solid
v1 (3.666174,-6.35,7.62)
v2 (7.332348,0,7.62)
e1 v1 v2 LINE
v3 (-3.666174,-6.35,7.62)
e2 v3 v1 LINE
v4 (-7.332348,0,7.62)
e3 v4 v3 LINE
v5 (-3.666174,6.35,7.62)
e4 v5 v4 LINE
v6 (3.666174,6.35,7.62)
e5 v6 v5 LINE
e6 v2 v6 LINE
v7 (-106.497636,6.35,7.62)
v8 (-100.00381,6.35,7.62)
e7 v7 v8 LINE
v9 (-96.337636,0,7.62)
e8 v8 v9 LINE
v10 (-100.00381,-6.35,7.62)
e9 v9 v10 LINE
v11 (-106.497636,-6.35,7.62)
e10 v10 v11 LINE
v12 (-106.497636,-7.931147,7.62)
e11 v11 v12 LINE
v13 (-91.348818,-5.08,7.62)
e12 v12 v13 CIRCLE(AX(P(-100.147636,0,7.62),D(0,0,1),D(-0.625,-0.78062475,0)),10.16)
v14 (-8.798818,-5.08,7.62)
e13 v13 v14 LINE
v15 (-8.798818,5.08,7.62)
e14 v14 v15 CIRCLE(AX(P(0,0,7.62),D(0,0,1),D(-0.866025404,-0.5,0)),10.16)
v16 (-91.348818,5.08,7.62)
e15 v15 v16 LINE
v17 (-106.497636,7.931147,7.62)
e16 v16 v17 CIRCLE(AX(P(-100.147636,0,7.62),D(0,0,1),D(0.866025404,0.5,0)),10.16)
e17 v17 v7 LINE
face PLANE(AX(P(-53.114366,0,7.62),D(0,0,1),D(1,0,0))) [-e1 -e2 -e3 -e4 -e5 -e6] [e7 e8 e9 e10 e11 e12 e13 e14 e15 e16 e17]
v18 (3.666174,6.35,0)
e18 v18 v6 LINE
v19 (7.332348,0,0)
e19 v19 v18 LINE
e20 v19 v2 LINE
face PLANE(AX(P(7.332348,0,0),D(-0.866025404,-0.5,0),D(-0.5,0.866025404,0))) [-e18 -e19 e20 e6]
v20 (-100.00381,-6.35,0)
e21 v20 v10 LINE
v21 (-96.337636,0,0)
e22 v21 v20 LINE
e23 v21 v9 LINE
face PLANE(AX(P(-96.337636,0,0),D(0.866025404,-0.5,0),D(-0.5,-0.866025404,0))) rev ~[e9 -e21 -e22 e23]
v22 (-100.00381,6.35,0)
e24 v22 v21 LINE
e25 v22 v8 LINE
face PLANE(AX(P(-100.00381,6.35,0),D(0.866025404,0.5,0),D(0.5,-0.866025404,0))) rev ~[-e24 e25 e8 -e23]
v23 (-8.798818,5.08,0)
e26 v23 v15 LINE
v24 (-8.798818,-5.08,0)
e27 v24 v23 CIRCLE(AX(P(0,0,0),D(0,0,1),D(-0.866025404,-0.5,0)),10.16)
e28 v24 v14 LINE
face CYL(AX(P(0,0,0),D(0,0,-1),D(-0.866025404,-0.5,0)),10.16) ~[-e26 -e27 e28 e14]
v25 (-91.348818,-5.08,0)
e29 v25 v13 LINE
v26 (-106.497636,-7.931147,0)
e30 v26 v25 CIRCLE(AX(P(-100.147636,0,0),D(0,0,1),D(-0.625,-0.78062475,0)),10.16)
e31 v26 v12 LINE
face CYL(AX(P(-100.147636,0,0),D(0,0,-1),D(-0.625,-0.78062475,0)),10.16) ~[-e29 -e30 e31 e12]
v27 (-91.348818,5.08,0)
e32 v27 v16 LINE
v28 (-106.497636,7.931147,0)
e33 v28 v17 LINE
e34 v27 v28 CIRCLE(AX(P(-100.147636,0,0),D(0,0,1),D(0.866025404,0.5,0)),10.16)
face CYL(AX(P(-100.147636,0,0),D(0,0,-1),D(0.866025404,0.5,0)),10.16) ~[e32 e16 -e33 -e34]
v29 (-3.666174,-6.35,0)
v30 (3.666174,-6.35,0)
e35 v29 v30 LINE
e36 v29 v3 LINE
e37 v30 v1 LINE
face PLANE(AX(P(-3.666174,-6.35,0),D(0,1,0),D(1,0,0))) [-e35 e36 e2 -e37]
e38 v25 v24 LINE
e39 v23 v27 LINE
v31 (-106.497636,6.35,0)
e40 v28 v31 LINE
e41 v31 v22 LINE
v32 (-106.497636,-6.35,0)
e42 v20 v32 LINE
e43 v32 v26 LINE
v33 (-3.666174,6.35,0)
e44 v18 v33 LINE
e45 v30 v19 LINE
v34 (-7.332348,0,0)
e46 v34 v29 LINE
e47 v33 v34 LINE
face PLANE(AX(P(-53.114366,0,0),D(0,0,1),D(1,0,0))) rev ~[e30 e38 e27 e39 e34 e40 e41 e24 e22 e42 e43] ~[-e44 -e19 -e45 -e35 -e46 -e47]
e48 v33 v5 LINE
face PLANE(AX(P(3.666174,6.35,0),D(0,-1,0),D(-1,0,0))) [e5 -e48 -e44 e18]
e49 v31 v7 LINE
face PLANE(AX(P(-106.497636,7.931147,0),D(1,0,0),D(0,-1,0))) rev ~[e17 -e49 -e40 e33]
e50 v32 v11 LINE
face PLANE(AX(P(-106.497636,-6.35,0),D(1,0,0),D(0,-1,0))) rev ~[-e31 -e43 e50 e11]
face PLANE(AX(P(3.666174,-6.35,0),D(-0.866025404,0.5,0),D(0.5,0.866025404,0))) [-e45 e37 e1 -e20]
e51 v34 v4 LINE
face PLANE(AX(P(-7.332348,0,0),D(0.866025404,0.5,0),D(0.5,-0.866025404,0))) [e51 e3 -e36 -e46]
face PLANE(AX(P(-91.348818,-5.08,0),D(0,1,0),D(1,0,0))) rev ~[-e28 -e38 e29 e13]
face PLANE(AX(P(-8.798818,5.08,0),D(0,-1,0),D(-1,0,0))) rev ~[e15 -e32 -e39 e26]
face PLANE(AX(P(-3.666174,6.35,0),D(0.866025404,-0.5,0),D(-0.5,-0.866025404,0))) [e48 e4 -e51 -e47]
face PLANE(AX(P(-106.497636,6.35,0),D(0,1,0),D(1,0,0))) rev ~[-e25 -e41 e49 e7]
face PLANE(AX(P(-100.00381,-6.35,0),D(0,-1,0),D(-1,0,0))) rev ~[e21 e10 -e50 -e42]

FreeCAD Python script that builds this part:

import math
import FreeCAD as App
import Part
import Sketcher
Q = App.Units.Quantity


def add_polygon(sketch, points):
    """Adds a closed chain of lines whose ends are joined by coincident constraints."""
    first, n = sketch.GeometryCount, len(points)
    for a, b in zip(points, points[1:] + points[:1]):
        sketch.addGeometry(Part.LineSegment(App.Vector(*a, 0), App.Vector(*b, 0)), False)
    for i in range(n):
        sketch.addConstraint(Sketcher.Constraint("Coincident", first + i, 2, first + (i + 1) % n, 1))

doc = App.newDocument("Part")
body = doc.addObject("PartDesign::Body", "Body")

# Sketch on XY plane
sketch1 = body.newObject("Sketcher::SketchObject", "Sketch")
sketch1.AttachmentSupport = (doc.getObject("XY_Plane"), [""])
sketch1.MapMode = "FlatFace"
sketch1.addGeometry(Part.LineSegment(App.Vector(-8.8, 5.1, 0), App.Vector(-91.3, 5.1, 0)), False)  # 0
sketch1.addGeometry(Part.ArcOfCircle(Part.Circle(App.Vector(-100.1, 0, 0), App.Vector(0, 0, 1), 10.2), math.radians(30), math.radians(129)), False)  # 1
sketch1.addGeometry(Part.LineSegment(App.Vector(-106.5, 7.9, 0), App.Vector(-106.5, 6.3, 0)), False)  # 2
sketch1.addGeometry(Part.LineSegment(App.Vector(-106.5, 6.3, 0), App.Vector(-100, 6.3, 0)), False)  # 3
sketch1.addGeometry(Part.LineSegment(App.Vector(-100, 6.3, 0), App.Vector(-96.3, 0, 0)), False)  # 4
sketch1.addGeometry(Part.LineSegment(App.Vector(-96.3, 0, 0), App.Vector(-100, -6.3, 0)), False)  # 5
sketch1.addGeometry(Part.LineSegment(App.Vector(-100, -6.3, 0), App.Vector(-106.5, -6.3, 0)), False)  # 6
sketch1.addGeometry(Part.LineSegment(App.Vector(-106.5, -6.3, 0), App.Vector(-106.5, -7.9, 0)), False)  # 7
sketch1.addGeometry(Part.ArcOfCircle(Part.Circle(App.Vector(-100.1, 0, 0), App.Vector(0, 0, 1), 10.2), math.radians(-129), math.radians(-30)), False)  # 8
sketch1.addGeometry(Part.LineSegment(App.Vector(-91.3, -5.1, 0), App.Vector(-8.8, -5.1, 0)), False)  # 9
sketch1.addGeometry(Part.ArcOfCircle(Part.Circle(App.Vector(0, 0, 0), App.Vector(0, 0, 1), 10.2), math.radians(-150), math.radians(150)), False)  # 10
add_polygon(sketch1, [(3.7, 6.3), (7.3, 0), (3.7, -6.3), (-3.7, -6.3), (-7.3, 0), (-3.7, 6.3)])  # lines 11-16
sketch1.addConstraint([
    Sketcher.Constraint("Coincident", 0, 2, 1, 1),
    Sketcher.Constraint("Coincident", 1, 2, 2, 1),
    Sketcher.Constraint("Coincident", 2, 2, 3, 1),
    Sketcher.Constraint("Coincident", 3, 2, 4, 1),
    Sketcher.Constraint("Coincident", 4, 2, 5, 1),
    Sketcher.Constraint("Coincident", 5, 2, 6, 1),
    Sketcher.Constraint("Coincident", 6, 2, 7, 1),
    Sketcher.Constraint("Coincident", 7, 2, 8, 1),
    Sketcher.Constraint("Coincident", 8, 2, 9, 1),
    Sketcher.Constraint("Coincident", 9, 2, 10, 1),
    Sketcher.Constraint("Coincident", 10, 2, 0, 1),
    Sketcher.Constraint("Horizontal", 0),
    Sketcher.Constraint("Vertical", 2),
    Sketcher.Constraint("Horizontal", 3),
    Sketcher.Constraint("Horizontal", 6),
    Sketcher.Constraint("Vertical", 7),
    Sketcher.Constraint("Horizontal", 9),
    Sketcher.Constraint("Horizontal", 13),
    Sketcher.Constraint("Horizontal", 16),
    Sketcher.Constraint("Coincident", 10, 3, -1, 1),
    Sketcher.Constraint("Coincident", 8, 3, 1, 3),
    Sketcher.Constraint("Equal", 1, 8),
    Sketcher.Constraint("Equal", 8, 10),
    Sketcher.Constraint("Symmetric", 11, 2, 14, 2, -1, 1),
    Sketcher.Constraint("Symmetric", 12, 2, 15, 2, -1, 1),
    Sketcher.Constraint("Symmetric", 3, 2, 5, 2, -1),
    Sketcher.Constraint("Symmetric", 1, 2, 7, 2, -1),
    Sketcher.Constraint("PointOnObject", 4, 2, -1),
    Sketcher.Constraint("PointOnObject", 11, 2, -1),
    Sketcher.Constraint("Parallel", 4, 11),
    Sketcher.Constraint("Parallel", 5, 12),
    Sketcher.Constraint("Parallel", 11, 14),
    Sketcher.Constraint("Horizontal", 6, 2, 12, 2),
    Sketcher.Constraint("Vertical", 0, 2, 8, 2),
    Sketcher.Constraint("Radius", 1, Q("0.4 in")),
    Sketcher.Constraint("Angle", 4, Q("-60 deg")),
    Sketcher.Constraint("DistanceX", 0, 2, 0, 1, Q("3.25 in")),
    Sketcher.Constraint("DistanceY", -1, 1, 0, 2, Q("0.2 in")),
    Sketcher.Constraint("DistanceX", 2, 2, 4, 2, Q("0.4 in")),
    Sketcher.Constraint("DistanceY", 5, 2, 3, 2, Q("0.5 in")),
    Sketcher.Constraint("DistanceX", 1, 2, 1, 3, Q("0.25 in")),
    Sketcher.Constraint("DistanceX", 13, 2, 13, 1, Q("7.332348 mm")),
])
pad1 = body.newObject("PartDesign::Pad", "Pad")
pad1.Profile = sketch1
pad1.Length = Q("0.3 in")

doc.recompute()
